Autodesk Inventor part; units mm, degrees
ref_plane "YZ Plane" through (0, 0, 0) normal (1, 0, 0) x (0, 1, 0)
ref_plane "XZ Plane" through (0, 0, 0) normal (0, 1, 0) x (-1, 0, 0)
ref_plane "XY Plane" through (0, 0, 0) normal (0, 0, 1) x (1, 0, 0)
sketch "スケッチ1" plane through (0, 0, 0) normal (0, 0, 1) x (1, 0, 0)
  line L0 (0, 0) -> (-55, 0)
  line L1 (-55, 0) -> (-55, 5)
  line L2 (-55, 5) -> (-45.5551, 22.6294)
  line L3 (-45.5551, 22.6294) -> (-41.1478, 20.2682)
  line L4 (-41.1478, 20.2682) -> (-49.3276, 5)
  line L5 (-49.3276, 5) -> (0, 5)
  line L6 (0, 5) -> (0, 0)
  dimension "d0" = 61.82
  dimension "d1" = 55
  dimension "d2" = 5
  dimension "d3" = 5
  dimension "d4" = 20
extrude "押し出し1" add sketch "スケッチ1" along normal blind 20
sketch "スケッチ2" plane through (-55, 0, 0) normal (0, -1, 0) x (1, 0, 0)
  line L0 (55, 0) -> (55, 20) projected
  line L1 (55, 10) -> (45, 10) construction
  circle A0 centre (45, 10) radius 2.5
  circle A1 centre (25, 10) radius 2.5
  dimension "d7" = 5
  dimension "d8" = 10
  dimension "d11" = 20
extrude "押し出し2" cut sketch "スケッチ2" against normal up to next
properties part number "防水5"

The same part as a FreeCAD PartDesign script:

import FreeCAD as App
import Part
import Sketcher
Q = App.Units.Quantity


def add_polygon(sketch, points):
    """Adds a closed chain of lines whose ends are joined by coincident constraints."""
    first, n = sketch.GeometryCount, len(points)
    for a, b in zip(points, points[1:] + points[:1]):
        sketch.addGeometry(Part.LineSegment(App.Vector(*a, 0), App.Vector(*b, 0)), False)
    for i in range(n):
        sketch.addConstraint(Sketcher.Constraint("Coincident", first + i, 2, first + (i + 1) % n, 1))

doc = App.newDocument("Part")
body = doc.addObject("PartDesign::Body", "Body")

# Sketch on XY plane
sketch1 = body.newObject("Sketcher::SketchObject", "Sketch")
sketch1.AttachmentSupport = (doc.getObject("XY_Plane"), [""])
sketch1.MapMode = "FlatFace"
add_polygon(sketch1, [(-55, 0), (0, 0), (0, 5), (-49.3, 5), (-41.1, 20.3), (-45.6, 22.6), (-55, 5)])  # lines 0-6
sketch1.addConstraint(Sketcher.Constraint("Horizontal", 0))
sketch1.addConstraint(Sketcher.Constraint("Vertical", 1))
sketch1.addConstraint(Sketcher.Constraint("Horizontal", 2))
sketch1.addConstraint(Sketcher.Constraint("Vertical", 6))
sketch1.addConstraint(Sketcher.Constraint("Coincident", 0, 2, -1, 1))
sketch1.addConstraint(Sketcher.Constraint("Perpendicular", 3, 4))
sketch1.addConstraint(Sketcher.Constraint("Perpendicular", 4, 5))
sketch1.addConstraint(Sketcher.Constraint("Horizontal", 2, 2, 5, 2))
sketch1.addConstraint(Sketcher.Constraint("DistanceX", 0, 1, 0, 2, Q("55 mm")))
sketch1.addConstraint(Sketcher.Constraint("DistanceY", 1, 1, 1, 2, Q("5 mm")))
sketch1.addConstraint(Sketcher.Constraint("Distance", 4, Q("5 mm")))
sketch1.addConstraint(Sketcher.Constraint("Distance", 5, Q("20 mm")))
sketch1.addConstraint(Sketcher.Constraint("Angle", 3, Q("61.8202 deg")))
pad1 = body.newObject("PartDesign::Pad", "Pad")
pad1.Profile = sketch1
pad1.Length = 20

# Sketch on XZ plane
sketch2 = body.newObject("Sketcher::SketchObject", "Sketch001")
sketch2.AttachmentSupport = (doc.getObject("XZ_Plane"), [""])
sketch2.MapMode = "FlatFace"
sketch2.addGeometry(Part.Circle(App.Vector(-10, 10, 0), App.Vector(0, 0, 1), 2.5), False)
sketch2.addGeometry(Part.Circle(App.Vector(-30, 10, 0), App.Vector(0, 0, 1), 2.5), False)
sketch2.addConstraint(Sketcher.Constraint("Equal", 0, 1))
sketch2.addConstraint(Sketcher.Constraint("Horizontal", 0, 3, 1, 3))
sketch2.addConstraint(Sketcher.Constraint("Diameter", 0, Q("5 mm")))
sketch2.addConstraint(Sketcher.Constraint("DistanceX", 0, 3, -1, 1, Q("10 mm")))
sketch2.addConstraint(Sketcher.Constraint("DistanceY", -1, 1, 0, 3, Q("10 mm")))
sketch2.addConstraint(Sketcher.Constraint("DistanceX", 1, 3, 0, 3, Q("20 mm")))
pocket1 = body.newObject("PartDesign::Pocket", "Pocket")
pocket1.Profile = sketch2
pocket1.Type = "UpToFirst"

doc.recompute()
